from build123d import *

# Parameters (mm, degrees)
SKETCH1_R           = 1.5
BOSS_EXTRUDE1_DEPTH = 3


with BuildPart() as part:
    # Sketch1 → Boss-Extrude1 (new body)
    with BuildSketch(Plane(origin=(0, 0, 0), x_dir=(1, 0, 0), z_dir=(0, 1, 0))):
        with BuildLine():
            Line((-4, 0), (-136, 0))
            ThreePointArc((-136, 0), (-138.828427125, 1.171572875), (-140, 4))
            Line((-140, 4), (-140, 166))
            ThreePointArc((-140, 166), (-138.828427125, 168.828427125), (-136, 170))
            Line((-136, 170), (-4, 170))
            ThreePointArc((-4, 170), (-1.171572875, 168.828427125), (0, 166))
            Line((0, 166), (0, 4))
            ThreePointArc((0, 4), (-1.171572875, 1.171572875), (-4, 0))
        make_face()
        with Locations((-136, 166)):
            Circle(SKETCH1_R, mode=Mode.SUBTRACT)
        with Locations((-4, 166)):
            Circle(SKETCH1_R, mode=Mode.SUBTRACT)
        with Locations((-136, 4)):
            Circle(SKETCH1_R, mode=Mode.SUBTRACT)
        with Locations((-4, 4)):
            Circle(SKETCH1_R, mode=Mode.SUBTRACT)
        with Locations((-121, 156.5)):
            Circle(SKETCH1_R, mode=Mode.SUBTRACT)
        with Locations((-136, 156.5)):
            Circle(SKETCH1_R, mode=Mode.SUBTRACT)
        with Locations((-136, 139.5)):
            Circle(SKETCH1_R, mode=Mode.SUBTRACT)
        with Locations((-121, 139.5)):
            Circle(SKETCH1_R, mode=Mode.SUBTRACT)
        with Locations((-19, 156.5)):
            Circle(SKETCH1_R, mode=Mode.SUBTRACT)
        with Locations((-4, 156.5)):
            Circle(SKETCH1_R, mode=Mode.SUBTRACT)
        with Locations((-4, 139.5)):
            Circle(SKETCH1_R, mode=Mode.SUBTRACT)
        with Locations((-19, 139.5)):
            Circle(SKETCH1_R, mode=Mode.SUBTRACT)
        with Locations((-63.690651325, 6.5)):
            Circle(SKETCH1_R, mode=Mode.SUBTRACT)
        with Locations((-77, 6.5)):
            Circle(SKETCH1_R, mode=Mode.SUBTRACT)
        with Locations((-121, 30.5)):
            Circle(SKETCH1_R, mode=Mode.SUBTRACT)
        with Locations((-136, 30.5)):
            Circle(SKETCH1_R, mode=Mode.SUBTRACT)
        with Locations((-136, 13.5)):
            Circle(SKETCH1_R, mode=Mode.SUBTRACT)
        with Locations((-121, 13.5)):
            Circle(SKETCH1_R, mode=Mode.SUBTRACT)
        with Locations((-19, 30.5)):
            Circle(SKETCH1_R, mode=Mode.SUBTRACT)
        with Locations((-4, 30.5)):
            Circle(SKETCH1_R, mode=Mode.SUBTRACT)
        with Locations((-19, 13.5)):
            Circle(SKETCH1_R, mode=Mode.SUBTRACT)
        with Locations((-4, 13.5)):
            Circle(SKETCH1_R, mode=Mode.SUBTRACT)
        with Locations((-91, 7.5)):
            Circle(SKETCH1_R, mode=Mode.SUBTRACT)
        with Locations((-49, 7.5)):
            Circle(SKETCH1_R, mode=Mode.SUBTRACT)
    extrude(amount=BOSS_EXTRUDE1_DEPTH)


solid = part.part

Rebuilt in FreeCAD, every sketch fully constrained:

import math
import FreeCAD as App
import Part
import Sketcher
Q = App.Units.Quantity

doc = App.newDocument("Part")
body = doc.addObject("PartDesign::Body", "Body")

sketch1 = doc.addObject("Sketcher::SketchObject", "Sketch")
body.addObject(sketch1)
sketch1.AttachmentSupport = (doc.XZ_Plane, [""])
sketch1.MapMode = "FlatFace"
sketch1.addGeometry(Part.LineSegment(App.Vector(-136, 0, 0), App.Vector(-4, 0, 0)), False)
sketch1.addGeometry(Part.ArcOfCircle(Part.Circle(App.Vector(-4, -4, 0), App.Vector(0, 0, 1), 4), math.radians(0), math.radians(90)), False)
sketch1.addGeometry(Part.LineSegment(App.Vector(0, -4, 0), App.Vector(0, -166, 0)), False)
sketch1.addGeometry(Part.ArcOfCircle(Part.Circle(App.Vector(-4, -166, 0), App.Vector(0, 0, 1), 4), math.radians(-90), math.radians(0)), False)
sketch1.addGeometry(Part.LineSegment(App.Vector(-4, -170, 0), App.Vector(-136, -170, 0)), False)
sketch1.addGeometry(Part.ArcOfCircle(Part.Circle(App.Vector(-136, -166, 0), App.Vector(0, 0, 1), 4), math.radians(180), math.radians(270)), False)
sketch1.addGeometry(Part.LineSegment(App.Vector(-140, -166, 0), App.Vector(-140, -4, 0)), False)
sketch1.addGeometry(Part.ArcOfCircle(Part.Circle(App.Vector(-136, -4, 0), App.Vector(0, 0, 1), 4), math.radians(90), math.radians(180)), False)
sketch1.addGeometry(Part.Circle(App.Vector(-4, -4, 0), App.Vector(0, 0, 1), 1.5), False)
sketch1.addGeometry(Part.Circle(App.Vector(-4, -13.5, 0), App.Vector(0, 0, 1), 1.5), False)
sketch1.addGeometry(Part.Circle(App.Vector(-19, -13.5, 0), App.Vector(0, 0, 1), 1.5), False)
sketch1.addGeometry(Part.Circle(App.Vector(-4, -30.5, 0), App.Vector(0, 0, 1), 1.5), False)
sketch1.addGeometry(Part.Circle(App.Vector(-19, -30.5, 0), App.Vector(0, 0, 1), 1.5), False)
sketch1.addGeometry(Part.Circle(App.Vector(-49, -7.5, 0), App.Vector(0, 0, 1), 1.5), False)
sketch1.addGeometry(Part.Circle(App.Vector(-63.7, -6.5, 0), App.Vector(0, 0, 1), 1.5), False)
sketch1.addGeometry(Part.Circle(App.Vector(-77, -6.5, 0), App.Vector(0, 0, 1), 1.5), False)
sketch1.addGeometry(Part.Circle(App.Vector(-91, -7.5, 0), App.Vector(0, 0, 1), 1.5), False)
sketch1.addGeometry(Part.Circle(App.Vector(-136, -4, 0), App.Vector(0, 0, 1), 1.5), False)
sketch1.addGeometry(Part.Circle(App.Vector(-121, -13.5, 0), App.Vector(0, 0, 1), 1.5), False)
sketch1.addGeometry(Part.Circle(App.Vector(-136, -13.5, 0), App.Vector(0, 0, 1), 1.5), False)
sketch1.addGeometry(Part.Circle(App.Vector(-121, -30.5, 0), App.Vector(0, 0, 1), 1.5), False)
sketch1.addGeometry(Part.Circle(App.Vector(-136, -30.5, 0), App.Vector(0, 0, 1), 1.5), False)
sketch1.addGeometry(Part.Circle(App.Vector(-4, -139.5, 0), App.Vector(0, 0, 1), 1.5), False)
sketch1.addGeometry(Part.Circle(App.Vector(-19, -139.5, 0), App.Vector(0, 0, 1), 1.5), False)
sketch1.addGeometry(Part.Circle(App.Vector(-4, -156.5, 0), App.Vector(0, 0, 1), 1.5), False)
sketch1.addGeometry(Part.Circle(App.Vector(-19, -156.5, 0), App.Vector(0, 0, 1), 1.5), False)
sketch1.addGeometry(Part.Circle(App.Vector(-4, -166, 0), App.Vector(0, 0, 1), 1.5), False)
sketch1.addGeometry(Part.Circle(App.Vector(-121, -139.5, 0), App.Vector(0, 0, 1), 1.5), False)
sketch1.addGeometry(Part.Circle(App.Vector(-136, -139.5, 0), App.Vector(0, 0, 1), 1.5), False)
sketch1.addGeometry(Part.Circle(App.Vector(-121, -156.5, 0), App.Vector(0, 0, 1), 1.5), False)
sketch1.addGeometry(Part.Circle(App.Vector(-136, -156.5, 0), App.Vector(0, 0, 1), 1.5), False)
sketch1.addGeometry(Part.Circle(App.Vector(-136, -166, 0), App.Vector(0, 0, 1), 1.5), False)
sketch1.addConstraint(Sketcher.Constraint("Tangent", 0, 2, 1, 2))
sketch1.addConstraint(Sketcher.Constraint("Tangent", 1, 1, 2, 1))
sketch1.addConstraint(Sketcher.Constraint("Tangent", 2, 2, 3, 2))
sketch1.addConstraint(Sketcher.Constraint("Tangent", 3, 1, 4, 1))
sketch1.addConstraint(Sketcher.Constraint("Tangent", 4, 2, 5, 2))
sketch1.addConstraint(Sketcher.Constraint("Tangent", 5, 1, 6, 1))
sketch1.addConstraint(Sketcher.Constraint("Tangent", 6, 2, 7, 2))
sketch1.addConstraint(Sketcher.Constraint("Tangent", 7, 1, 0, 1))
sketch1.addConstraint(Sketcher.Constraint("Horizontal", 0))
sketch1.addConstraint(Sketcher.Constraint("Vertical", 2))
sketch1.addConstraint(Sketcher.Constraint("Horizontal", 4))
sketch1.addConstraint(Sketcher.Constraint("Vertical", 6))
sketch1.addConstraint(Sketcher.Constraint("Coincident", 8, 3, 1, 3))
sketch1.addConstraint(Sketcher.Constraint("Coincident", 17, 3, 7, 3))
sketch1.addConstraint(Sketcher.Constraint("Coincident", 26, 3, 3, 3))
sketch1.addConstraint(Sketcher.Constraint("Coincident", 31, 3, 5, 3))
sketch1.addConstraint(Sketcher.Constraint("Equal", 1, 3))
sketch1.addConstraint(Sketcher.Constraint("Equal", 3, 5))
sketch1.addConstraint(Sketcher.Constraint("Equal", 5, 7))
sketch1.addConstraint(Sketcher.Constraint("Equal", 8, 9))
sketch1.addConstraint(Sketcher.Constraint("Equal", 9, 10))
sketch1.addConstraint(Sketcher.Constraint("Equal", 10, 11))
sketch1.addConstraint(Sketcher.Constraint("Equal", 11, 12))
sketch1.addConstraint(Sketcher.Constraint("Equal", 12, 13))
sketch1.addConstraint(Sketcher.Constraint("Equal", 13, 14))
sketch1.addConstraint(Sketcher.Constraint("Equal", 14, 15))
sketch1.addConstraint(Sketcher.Constraint("Equal", 15, 16))
sketch1.addConstraint(Sketcher.Constraint("Equal", 16, 17))
sketch1.addConstraint(Sketcher.Constraint("Equal", 17, 18))
sketch1.addConstraint(Sketcher.Constraint("Equal", 18, 19))
sketch1.addConstraint(Sketcher.Constraint("Equal", 19, 20))
sketch1.addConstraint(Sketcher.Constraint("Equal", 20, 21))
sketch1.addConstraint(Sketcher.Constraint("Equal", 21, 22))
sketch1.addConstraint(Sketcher.Constraint("Equal", 22, 23))
sketch1.addConstraint(Sketcher.Constraint("Equal", 23, 24))
sketch1.addConstraint(Sketcher.Constraint("Equal", 24, 25))
sketch1.addConstraint(Sketcher.Constraint("Equal", 25, 26))
sketch1.addConstraint(Sketcher.Constraint("Equal", 26, 27))
sketch1.addConstraint(Sketcher.Constraint("Equal", 27, 28))
sketch1.addConstraint(Sketcher.Constraint("Equal", 28, 29))
sketch1.addConstraint(Sketcher.Constraint("Equal", 29, 30))
sketch1.addConstraint(Sketcher.Constraint("Equal", 30, 31))
sketch1.addConstraint(Sketcher.Constraint("PointOnObject", 0, 2, -1))
sketch1.addConstraint(Sketcher.Constraint("PointOnObject", 1, 1, -2))
sketch1.addConstraint(Sketcher.Constraint("Horizontal", 9, 3, 10, 3))
sketch1.addConstraint(Sketcher.Constraint("Horizontal", 11, 3, 12, 3))
sketch1.addConstraint(Sketcher.Constraint("Horizontal", 14, 3, 15, 3))
sketch1.addConstraint(Sketcher.Constraint("Horizontal", 13, 3, 16, 3))
sketch1.addConstraint(Sketcher.Constraint("Horizontal", 10, 3, 18, 3))
sketch1.addConstraint(Sketcher.Constraint("Horizontal", 18, 3, 19, 3))
sketch1.addConstraint(Sketcher.Constraint("Horizontal", 12, 3, 20, 3))
sketch1.addConstraint(Sketcher.Constraint("Horizontal", 20, 3, 21, 3))
sketch1.addConstraint(Sketcher.Constraint("Horizontal", 22, 3, 23, 3))
sketch1.addConstraint(Sketcher.Constraint("Horizontal", 24, 3, 25, 3))
sketch1.addConstraint(Sketcher.Constraint("Horizontal", 23, 3, 27, 3))
sketch1.addConstraint(Sketcher.Constraint("Horizontal", 27, 3, 28, 3))
sketch1.addConstraint(Sketcher.Constraint("Horizontal", 25, 3, 29, 3))
sketch1.addConstraint(Sketcher.Constraint("Horizontal", 29, 3, 30, 3))
sketch1.addConstraint(Sketcher.Constraint("Vertical", 8, 3, 9, 3))
sketch1.addConstraint(Sketcher.Constraint("Vertical", 9, 3, 11, 3))
sketch1.addConstraint(Sketcher.Constraint("Vertical", 10, 3, 12, 3))
sketch1.addConstraint(Sketcher.Constraint("Vertical", 17, 3, 19, 3))
sketch1.addConstraint(Sketcher.Constraint("Vertical", 18, 3, 20, 3))
sketch1.addConstraint(Sketcher.Constraint("Vertical", 19, 3, 21, 3))
sketch1.addConstraint(Sketcher.Constraint("Vertical", 11, 3, 22, 3))
sketch1.addConstraint(Sketcher.Constraint("Vertical", 12, 3, 23, 3))
sketch1.addConstraint(Sketcher.Constraint("Vertical", 22, 3, 24, 3))
sketch1.addConstraint(Sketcher.Constraint("Vertical", 23, 3, 25, 3))
sketch1.addConstraint(Sketcher.Constraint("Vertical", 20, 3, 27, 3))
sketch1.addConstraint(Sketcher.Constraint("Vertical", 21, 3, 28, 3))
sketch1.addConstraint(Sketcher.Constraint("Vertical", 27, 3, 29, 3))
sketch1.addConstraint(Sketcher.Constraint("Vertical", 28, 3, 30, 3))
sketch1.addConstraint(Sketcher.Constraint("Diameter", 8, Q("3 mm")))
sketch1.addConstraint(Sketcher.Constraint("Radius", 1, Q("4 mm")))
sketch1.addConstraint(Sketcher.Constraint("DistanceX", 0, 1, 0, 2, Q("132 mm")))
sketch1.addConstraint(Sketcher.Constraint("DistanceY", 2, 2, 2, 1, Q("162 mm")))
sketch1.addConstraint(Sketcher.Constraint("DistanceX", 10, 3, -1, 1, Q("19 mm")))
sketch1.addConstraint(Sketcher.Constraint("DistanceX", 13, 3, -1, 1, Q("49 mm")))
sketch1.addConstraint(Sketcher.Constraint("DistanceX", 15, 3, -1, 1, Q("77 mm")))
sketch1.addConstraint(Sketcher.Constraint("DistanceX", 16, 3, -1, 1, Q("91 mm")))
sketch1.addConstraint(Sketcher.Constraint("DistanceX", 18, 3, -1, 1, Q("121 mm")))
sketch1.addConstraint(Sketcher.Constraint("DistanceY", 11, 3, 9, 3, Q("17 mm")))
sketch1.addConstraint(Sketcher.Constraint("DistanceY", 10, 3, 13, 3, Q("6 mm")))
sketch1.addConstraint(Sketcher.Constraint("DistanceY", 13, 3, 14, 3, Q("1 mm")))
sketch1.addConstraint(Sketcher.Constraint("DistanceY", 22, 3, 11, 3, Q("109 mm")))
sketch1.addConstraint(Sketcher.Constraint("DistanceY", 24, 3, 22, 3, Q("17 mm")))
sketch1.addConstraint(Sketcher.Constraint("DistanceY", 9, 3, -1, 1, Q("13.5 mm")))
sketch1.addConstraint(Sketcher.Constraint("DistanceX", 14, 3, -1, 1, Q("63.690651 mm")))
pad1 = doc.addObject("PartDesign::Pad", "Pad")
body.addObject(pad1)
pad1.Profile = sketch1
pad1.Length = 3
pad1.Reversed = True

doc.recompute()
